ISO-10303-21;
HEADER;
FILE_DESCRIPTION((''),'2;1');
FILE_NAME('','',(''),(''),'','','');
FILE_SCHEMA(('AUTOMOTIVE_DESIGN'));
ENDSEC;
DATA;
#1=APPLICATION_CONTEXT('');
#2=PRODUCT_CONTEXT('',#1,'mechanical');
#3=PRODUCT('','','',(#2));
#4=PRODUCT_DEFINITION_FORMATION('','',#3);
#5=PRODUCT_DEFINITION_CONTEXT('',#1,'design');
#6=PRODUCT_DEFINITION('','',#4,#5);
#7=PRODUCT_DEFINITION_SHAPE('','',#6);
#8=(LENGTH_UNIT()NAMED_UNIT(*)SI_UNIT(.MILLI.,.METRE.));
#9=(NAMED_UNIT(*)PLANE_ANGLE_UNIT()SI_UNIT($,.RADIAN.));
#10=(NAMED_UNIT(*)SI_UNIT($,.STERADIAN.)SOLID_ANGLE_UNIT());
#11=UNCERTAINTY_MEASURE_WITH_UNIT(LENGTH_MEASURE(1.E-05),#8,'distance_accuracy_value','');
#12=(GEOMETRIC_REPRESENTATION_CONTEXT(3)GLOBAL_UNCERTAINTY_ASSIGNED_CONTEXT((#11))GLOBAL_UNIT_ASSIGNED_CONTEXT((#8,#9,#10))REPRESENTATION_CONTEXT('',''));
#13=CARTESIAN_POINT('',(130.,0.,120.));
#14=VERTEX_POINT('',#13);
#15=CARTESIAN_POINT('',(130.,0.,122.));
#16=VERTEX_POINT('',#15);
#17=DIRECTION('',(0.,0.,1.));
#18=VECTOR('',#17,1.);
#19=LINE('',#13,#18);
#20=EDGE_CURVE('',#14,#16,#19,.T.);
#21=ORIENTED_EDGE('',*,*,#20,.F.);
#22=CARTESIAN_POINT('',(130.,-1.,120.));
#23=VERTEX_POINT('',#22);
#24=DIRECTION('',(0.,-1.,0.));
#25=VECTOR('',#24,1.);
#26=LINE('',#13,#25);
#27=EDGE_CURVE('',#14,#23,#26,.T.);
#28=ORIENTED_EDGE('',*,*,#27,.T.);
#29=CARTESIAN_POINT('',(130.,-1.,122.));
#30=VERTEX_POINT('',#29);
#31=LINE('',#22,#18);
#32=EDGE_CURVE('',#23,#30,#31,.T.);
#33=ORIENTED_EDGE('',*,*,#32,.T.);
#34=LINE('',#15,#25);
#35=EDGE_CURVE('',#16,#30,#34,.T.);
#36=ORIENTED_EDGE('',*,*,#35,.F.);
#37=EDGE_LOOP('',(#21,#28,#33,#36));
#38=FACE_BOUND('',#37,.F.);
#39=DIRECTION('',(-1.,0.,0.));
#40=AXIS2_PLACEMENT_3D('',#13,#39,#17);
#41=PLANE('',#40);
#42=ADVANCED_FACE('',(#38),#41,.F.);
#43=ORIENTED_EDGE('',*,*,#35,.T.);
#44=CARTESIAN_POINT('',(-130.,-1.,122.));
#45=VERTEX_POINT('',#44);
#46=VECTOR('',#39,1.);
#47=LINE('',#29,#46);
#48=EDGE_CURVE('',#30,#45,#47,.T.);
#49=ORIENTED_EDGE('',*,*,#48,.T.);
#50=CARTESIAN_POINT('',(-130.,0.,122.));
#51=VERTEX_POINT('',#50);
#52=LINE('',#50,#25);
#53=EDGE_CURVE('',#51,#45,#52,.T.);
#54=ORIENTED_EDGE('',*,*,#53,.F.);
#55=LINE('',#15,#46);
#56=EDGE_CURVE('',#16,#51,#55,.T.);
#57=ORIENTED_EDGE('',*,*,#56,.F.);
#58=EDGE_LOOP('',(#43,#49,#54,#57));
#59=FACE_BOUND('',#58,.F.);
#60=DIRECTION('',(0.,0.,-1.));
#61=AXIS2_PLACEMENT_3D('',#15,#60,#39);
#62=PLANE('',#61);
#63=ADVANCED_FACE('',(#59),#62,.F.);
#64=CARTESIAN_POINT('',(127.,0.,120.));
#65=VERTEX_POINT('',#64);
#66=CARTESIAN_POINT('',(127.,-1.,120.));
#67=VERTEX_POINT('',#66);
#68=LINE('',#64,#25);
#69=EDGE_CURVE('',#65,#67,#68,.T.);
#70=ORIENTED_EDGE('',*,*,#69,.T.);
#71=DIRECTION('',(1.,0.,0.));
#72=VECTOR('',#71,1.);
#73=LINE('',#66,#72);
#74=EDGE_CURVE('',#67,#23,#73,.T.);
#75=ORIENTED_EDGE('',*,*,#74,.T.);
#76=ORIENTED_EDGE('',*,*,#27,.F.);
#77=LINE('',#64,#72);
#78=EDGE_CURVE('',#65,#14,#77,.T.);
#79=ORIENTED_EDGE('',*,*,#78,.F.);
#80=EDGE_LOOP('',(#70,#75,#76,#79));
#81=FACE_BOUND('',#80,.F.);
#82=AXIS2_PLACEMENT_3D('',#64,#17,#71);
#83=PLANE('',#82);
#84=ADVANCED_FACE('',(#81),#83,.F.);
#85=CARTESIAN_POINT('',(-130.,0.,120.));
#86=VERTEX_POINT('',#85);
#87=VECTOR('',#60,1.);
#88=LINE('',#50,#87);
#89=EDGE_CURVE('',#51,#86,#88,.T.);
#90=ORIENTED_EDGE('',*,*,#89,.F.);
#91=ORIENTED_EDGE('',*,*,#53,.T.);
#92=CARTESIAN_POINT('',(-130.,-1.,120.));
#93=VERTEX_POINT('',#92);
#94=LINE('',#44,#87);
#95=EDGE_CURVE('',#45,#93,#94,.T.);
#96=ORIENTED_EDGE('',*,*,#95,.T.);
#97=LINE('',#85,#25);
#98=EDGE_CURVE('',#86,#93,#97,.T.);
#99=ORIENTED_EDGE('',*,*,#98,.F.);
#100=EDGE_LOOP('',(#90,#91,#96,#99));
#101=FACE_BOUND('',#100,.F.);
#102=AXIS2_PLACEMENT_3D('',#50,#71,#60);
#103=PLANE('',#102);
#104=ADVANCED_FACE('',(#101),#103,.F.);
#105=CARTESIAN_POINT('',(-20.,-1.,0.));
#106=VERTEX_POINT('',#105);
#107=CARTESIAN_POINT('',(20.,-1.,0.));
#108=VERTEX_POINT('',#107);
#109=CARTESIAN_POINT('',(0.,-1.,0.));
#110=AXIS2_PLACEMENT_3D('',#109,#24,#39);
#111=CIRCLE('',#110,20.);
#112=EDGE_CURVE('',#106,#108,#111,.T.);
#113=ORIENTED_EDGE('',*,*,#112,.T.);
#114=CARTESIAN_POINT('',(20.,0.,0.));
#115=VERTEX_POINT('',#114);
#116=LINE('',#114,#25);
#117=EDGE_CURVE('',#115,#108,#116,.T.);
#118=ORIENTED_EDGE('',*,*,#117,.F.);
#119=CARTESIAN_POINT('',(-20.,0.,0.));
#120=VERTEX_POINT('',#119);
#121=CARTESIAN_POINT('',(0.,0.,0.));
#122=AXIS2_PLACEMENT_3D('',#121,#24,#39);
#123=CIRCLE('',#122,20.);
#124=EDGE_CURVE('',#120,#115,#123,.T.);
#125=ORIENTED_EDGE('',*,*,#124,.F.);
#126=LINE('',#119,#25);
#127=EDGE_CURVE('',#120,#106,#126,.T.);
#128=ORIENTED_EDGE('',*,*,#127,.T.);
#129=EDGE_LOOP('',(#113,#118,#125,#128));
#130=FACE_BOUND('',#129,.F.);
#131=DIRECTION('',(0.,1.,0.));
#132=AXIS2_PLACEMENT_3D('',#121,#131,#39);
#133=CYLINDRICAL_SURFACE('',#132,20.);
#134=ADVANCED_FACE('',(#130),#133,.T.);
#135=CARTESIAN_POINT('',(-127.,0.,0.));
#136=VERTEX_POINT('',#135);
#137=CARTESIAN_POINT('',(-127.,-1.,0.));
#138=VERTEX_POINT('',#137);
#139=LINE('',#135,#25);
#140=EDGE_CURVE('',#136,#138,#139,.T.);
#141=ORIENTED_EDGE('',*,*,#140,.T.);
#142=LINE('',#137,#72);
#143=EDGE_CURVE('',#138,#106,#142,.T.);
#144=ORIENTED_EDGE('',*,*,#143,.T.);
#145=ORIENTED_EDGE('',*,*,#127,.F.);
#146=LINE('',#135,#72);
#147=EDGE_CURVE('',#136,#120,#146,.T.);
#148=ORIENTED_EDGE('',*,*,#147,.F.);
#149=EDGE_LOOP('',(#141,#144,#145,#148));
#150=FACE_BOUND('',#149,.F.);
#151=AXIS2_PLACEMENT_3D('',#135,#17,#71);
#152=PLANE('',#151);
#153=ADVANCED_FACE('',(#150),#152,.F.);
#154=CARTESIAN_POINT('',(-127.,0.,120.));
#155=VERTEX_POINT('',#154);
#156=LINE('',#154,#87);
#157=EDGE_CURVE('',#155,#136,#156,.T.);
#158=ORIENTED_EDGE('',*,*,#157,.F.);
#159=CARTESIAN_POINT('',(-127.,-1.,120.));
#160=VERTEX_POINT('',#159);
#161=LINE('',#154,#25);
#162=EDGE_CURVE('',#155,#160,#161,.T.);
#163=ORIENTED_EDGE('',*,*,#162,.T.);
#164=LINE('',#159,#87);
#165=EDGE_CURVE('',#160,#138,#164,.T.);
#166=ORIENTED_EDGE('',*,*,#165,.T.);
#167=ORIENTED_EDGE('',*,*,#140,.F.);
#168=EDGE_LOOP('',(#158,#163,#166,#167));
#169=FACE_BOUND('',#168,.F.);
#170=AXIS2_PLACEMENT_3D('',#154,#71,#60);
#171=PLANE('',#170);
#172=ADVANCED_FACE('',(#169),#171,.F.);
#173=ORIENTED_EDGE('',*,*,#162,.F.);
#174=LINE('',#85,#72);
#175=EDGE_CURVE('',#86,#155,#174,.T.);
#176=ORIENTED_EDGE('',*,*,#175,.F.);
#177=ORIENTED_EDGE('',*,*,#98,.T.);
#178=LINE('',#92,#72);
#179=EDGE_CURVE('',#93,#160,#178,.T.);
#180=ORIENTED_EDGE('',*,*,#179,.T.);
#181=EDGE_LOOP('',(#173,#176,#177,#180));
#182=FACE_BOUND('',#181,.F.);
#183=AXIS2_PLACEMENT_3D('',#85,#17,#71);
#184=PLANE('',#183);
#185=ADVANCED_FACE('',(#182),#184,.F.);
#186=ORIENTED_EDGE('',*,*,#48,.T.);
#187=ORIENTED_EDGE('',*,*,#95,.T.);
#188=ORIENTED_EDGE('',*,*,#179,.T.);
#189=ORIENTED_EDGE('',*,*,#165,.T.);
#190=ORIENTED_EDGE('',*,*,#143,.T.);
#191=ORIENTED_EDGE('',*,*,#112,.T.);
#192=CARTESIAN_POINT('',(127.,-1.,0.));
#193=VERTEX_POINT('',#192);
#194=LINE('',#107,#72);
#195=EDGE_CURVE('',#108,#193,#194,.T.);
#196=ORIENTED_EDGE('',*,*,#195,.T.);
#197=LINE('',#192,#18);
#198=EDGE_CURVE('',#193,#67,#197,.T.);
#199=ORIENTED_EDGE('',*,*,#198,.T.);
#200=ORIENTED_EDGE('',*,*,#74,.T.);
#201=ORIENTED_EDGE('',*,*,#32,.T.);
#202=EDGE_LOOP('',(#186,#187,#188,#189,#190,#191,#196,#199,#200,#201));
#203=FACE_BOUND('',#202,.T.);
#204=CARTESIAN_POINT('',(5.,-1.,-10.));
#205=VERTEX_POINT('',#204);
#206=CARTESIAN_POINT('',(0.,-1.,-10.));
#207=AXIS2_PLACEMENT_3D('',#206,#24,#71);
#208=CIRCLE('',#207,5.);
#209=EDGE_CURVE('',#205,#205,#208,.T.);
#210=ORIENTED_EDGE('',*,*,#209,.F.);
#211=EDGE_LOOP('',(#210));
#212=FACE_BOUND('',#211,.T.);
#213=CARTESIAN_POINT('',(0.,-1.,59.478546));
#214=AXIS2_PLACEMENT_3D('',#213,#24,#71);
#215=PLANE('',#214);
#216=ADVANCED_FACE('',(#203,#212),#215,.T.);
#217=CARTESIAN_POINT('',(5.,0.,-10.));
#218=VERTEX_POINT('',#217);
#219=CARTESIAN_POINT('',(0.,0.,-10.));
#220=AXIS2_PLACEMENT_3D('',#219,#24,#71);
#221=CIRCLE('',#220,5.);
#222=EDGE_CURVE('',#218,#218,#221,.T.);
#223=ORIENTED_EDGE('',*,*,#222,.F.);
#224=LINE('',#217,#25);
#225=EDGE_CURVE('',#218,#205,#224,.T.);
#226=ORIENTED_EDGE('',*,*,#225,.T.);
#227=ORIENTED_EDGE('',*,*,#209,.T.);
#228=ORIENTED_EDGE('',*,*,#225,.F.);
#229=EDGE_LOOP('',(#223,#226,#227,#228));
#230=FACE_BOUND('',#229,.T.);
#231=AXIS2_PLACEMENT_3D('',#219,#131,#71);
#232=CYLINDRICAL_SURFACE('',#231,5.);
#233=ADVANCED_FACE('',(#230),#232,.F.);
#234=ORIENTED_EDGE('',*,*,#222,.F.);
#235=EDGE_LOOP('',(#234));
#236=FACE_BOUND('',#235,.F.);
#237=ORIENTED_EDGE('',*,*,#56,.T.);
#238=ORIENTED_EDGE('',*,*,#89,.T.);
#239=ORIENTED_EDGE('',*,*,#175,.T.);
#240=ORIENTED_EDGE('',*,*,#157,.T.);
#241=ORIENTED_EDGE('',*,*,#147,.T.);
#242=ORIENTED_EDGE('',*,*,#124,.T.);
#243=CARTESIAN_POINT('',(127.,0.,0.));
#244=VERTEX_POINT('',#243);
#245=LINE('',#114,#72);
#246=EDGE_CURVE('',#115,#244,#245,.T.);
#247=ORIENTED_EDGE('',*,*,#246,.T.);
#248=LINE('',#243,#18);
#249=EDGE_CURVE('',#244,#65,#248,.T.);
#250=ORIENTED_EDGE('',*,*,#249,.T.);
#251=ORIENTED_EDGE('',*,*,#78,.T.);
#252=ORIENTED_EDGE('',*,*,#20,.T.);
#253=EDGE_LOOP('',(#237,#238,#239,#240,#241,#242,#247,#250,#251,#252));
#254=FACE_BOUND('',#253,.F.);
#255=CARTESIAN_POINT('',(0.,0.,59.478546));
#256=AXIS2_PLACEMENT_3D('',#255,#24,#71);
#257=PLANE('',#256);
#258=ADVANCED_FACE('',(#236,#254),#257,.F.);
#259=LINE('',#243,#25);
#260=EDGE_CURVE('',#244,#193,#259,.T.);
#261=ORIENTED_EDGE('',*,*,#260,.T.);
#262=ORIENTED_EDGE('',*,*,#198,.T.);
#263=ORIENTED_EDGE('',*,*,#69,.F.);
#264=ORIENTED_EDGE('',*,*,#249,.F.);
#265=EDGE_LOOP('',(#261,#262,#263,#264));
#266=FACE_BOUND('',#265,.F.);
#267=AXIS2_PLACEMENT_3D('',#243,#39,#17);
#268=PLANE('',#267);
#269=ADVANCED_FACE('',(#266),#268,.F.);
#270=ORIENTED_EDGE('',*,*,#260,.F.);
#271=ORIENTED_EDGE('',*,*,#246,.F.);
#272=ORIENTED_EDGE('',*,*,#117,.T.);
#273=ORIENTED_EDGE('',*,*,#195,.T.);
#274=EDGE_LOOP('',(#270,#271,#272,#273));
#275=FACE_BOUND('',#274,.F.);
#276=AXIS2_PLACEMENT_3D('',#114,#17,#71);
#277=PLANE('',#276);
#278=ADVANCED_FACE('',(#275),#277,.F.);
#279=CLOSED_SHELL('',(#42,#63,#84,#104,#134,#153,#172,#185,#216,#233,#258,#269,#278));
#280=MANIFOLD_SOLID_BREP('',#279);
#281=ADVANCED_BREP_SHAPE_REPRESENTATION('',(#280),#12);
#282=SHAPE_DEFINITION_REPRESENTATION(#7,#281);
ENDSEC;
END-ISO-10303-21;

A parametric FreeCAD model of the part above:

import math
import FreeCAD as App
import Part
import Sketcher
from FreeCAD import Vector
Q = App.Units.Quantity

doc = App.newDocument("Part")
body = doc.addObject("PartDesign::Body", "Body")

# Sketch on XZ plane
sketch1 = doc.addObject("Sketcher::SketchObject", "Sketch")
body.addObject(sketch1)
sketch1.AttachmentSupport = (doc.XZ_Plane, [""])
sketch1.MapMode = "FlatFace"
sketch1.addGeometry([
    Part.LineSegment(Vector(-130, 120, 0), Vector(-127, 120, 0)),  # 0
    Part.LineSegment(Vector(-127, 120, 0), Vector(-127, 0, 0)),  # 1
    Part.LineSegment(Vector(-127, 0, 0), Vector(-20, 0, 0)),  # 2
    Part.ArcOfCircle(Part.Circle(Vector(0, 0, 0), Vector(0, 0, 1), 20), math.radians(180), math.radians(360)),  # 3
    Part.LineSegment(Vector(20, 0, 0), Vector(127, 0, 0)),  # 4
    Part.LineSegment(Vector(127, 0, 0), Vector(127, 120, 0)),  # 5
    Part.LineSegment(Vector(127, 120, 0), Vector(130, 120, 0)),  # 6
    Part.LineSegment(Vector(130, 120, 0), Vector(130, 122, 0)),  # 7
    Part.LineSegment(Vector(130, 122, 0), Vector(-130, 122, 0)),  # 8
    Part.LineSegment(Vector(-130, 122, 0), Vector(-130, 120, 0)),  # 9
    Part.Circle(Vector(0, -10, 0), Vector(0, 0, 1), 5),  # 10
], False)
sketch1.addConstraint([
    Sketcher.Constraint("Coincident", 0, 2, 1, 1),
    Sketcher.Constraint("Coincident", 1, 2, 2, 1),
    Sketcher.Constraint("Coincident", 2, 2, 3, 1),
    Sketcher.Constraint("Coincident", 3, 2, 4, 1),
    Sketcher.Constraint("Coincident", 4, 2, 5, 1),
    Sketcher.Constraint("Coincident", 5, 2, 6, 1),
    Sketcher.Constraint("Coincident", 6, 2, 7, 1),
    Sketcher.Constraint("Coincident", 7, 2, 8, 1),
    Sketcher.Constraint("Coincident", 8, 2, 9, 1),
    Sketcher.Constraint("Coincident", 9, 2, 0, 1),
    Sketcher.Constraint("Horizontal", 0),
    Sketcher.Constraint("Vertical", 1),
    Sketcher.Constraint("Horizontal", 2),
    Sketcher.Constraint("Horizontal", 4),
    Sketcher.Constraint("Vertical", 5),
    Sketcher.Constraint("Horizontal", 6),
    Sketcher.Constraint("Vertical", 7),
    Sketcher.Constraint("Horizontal", 8),
    Sketcher.Constraint("Vertical", 9),
    Sketcher.Constraint("Coincident", 3, 3, -1, 1),
    Sketcher.Constraint("Symmetric", 1, 2, 4, 2, -1, 1),
    Sketcher.Constraint("Symmetric", 6, 2, 9, 2, -2),
    Sketcher.Constraint("PointOnObject", 10, 3, -2),
    Sketcher.Constraint("PointOnObject", 1, 2, -1),
    Sketcher.Constraint("Diameter", 10, Q("10 mm")),
    Sketcher.Constraint("Radius", 3, Q("20 mm")),
    Sketcher.Constraint("DistanceX", 0, 1, 0, 2, Q("3 mm")),
    Sketcher.Constraint("DistanceX", 2, 1, 2, 2, Q("107 mm")),
    Sketcher.Constraint("DistanceY", 1, 2, 1, 1, Q("120 mm")),
    Sketcher.Constraint("DistanceY", 7, 1, 7, 2, Q("2 mm")),
    Sketcher.Constraint("DistanceY", 10, 3, -1, 1, Q("10 mm")),
])
pad1 = doc.addObject("PartDesign::Pad", "Pad")
body.addObject(pad1)
pad1.Profile = sketch1
pad1.Length = 1

doc.recompute()
